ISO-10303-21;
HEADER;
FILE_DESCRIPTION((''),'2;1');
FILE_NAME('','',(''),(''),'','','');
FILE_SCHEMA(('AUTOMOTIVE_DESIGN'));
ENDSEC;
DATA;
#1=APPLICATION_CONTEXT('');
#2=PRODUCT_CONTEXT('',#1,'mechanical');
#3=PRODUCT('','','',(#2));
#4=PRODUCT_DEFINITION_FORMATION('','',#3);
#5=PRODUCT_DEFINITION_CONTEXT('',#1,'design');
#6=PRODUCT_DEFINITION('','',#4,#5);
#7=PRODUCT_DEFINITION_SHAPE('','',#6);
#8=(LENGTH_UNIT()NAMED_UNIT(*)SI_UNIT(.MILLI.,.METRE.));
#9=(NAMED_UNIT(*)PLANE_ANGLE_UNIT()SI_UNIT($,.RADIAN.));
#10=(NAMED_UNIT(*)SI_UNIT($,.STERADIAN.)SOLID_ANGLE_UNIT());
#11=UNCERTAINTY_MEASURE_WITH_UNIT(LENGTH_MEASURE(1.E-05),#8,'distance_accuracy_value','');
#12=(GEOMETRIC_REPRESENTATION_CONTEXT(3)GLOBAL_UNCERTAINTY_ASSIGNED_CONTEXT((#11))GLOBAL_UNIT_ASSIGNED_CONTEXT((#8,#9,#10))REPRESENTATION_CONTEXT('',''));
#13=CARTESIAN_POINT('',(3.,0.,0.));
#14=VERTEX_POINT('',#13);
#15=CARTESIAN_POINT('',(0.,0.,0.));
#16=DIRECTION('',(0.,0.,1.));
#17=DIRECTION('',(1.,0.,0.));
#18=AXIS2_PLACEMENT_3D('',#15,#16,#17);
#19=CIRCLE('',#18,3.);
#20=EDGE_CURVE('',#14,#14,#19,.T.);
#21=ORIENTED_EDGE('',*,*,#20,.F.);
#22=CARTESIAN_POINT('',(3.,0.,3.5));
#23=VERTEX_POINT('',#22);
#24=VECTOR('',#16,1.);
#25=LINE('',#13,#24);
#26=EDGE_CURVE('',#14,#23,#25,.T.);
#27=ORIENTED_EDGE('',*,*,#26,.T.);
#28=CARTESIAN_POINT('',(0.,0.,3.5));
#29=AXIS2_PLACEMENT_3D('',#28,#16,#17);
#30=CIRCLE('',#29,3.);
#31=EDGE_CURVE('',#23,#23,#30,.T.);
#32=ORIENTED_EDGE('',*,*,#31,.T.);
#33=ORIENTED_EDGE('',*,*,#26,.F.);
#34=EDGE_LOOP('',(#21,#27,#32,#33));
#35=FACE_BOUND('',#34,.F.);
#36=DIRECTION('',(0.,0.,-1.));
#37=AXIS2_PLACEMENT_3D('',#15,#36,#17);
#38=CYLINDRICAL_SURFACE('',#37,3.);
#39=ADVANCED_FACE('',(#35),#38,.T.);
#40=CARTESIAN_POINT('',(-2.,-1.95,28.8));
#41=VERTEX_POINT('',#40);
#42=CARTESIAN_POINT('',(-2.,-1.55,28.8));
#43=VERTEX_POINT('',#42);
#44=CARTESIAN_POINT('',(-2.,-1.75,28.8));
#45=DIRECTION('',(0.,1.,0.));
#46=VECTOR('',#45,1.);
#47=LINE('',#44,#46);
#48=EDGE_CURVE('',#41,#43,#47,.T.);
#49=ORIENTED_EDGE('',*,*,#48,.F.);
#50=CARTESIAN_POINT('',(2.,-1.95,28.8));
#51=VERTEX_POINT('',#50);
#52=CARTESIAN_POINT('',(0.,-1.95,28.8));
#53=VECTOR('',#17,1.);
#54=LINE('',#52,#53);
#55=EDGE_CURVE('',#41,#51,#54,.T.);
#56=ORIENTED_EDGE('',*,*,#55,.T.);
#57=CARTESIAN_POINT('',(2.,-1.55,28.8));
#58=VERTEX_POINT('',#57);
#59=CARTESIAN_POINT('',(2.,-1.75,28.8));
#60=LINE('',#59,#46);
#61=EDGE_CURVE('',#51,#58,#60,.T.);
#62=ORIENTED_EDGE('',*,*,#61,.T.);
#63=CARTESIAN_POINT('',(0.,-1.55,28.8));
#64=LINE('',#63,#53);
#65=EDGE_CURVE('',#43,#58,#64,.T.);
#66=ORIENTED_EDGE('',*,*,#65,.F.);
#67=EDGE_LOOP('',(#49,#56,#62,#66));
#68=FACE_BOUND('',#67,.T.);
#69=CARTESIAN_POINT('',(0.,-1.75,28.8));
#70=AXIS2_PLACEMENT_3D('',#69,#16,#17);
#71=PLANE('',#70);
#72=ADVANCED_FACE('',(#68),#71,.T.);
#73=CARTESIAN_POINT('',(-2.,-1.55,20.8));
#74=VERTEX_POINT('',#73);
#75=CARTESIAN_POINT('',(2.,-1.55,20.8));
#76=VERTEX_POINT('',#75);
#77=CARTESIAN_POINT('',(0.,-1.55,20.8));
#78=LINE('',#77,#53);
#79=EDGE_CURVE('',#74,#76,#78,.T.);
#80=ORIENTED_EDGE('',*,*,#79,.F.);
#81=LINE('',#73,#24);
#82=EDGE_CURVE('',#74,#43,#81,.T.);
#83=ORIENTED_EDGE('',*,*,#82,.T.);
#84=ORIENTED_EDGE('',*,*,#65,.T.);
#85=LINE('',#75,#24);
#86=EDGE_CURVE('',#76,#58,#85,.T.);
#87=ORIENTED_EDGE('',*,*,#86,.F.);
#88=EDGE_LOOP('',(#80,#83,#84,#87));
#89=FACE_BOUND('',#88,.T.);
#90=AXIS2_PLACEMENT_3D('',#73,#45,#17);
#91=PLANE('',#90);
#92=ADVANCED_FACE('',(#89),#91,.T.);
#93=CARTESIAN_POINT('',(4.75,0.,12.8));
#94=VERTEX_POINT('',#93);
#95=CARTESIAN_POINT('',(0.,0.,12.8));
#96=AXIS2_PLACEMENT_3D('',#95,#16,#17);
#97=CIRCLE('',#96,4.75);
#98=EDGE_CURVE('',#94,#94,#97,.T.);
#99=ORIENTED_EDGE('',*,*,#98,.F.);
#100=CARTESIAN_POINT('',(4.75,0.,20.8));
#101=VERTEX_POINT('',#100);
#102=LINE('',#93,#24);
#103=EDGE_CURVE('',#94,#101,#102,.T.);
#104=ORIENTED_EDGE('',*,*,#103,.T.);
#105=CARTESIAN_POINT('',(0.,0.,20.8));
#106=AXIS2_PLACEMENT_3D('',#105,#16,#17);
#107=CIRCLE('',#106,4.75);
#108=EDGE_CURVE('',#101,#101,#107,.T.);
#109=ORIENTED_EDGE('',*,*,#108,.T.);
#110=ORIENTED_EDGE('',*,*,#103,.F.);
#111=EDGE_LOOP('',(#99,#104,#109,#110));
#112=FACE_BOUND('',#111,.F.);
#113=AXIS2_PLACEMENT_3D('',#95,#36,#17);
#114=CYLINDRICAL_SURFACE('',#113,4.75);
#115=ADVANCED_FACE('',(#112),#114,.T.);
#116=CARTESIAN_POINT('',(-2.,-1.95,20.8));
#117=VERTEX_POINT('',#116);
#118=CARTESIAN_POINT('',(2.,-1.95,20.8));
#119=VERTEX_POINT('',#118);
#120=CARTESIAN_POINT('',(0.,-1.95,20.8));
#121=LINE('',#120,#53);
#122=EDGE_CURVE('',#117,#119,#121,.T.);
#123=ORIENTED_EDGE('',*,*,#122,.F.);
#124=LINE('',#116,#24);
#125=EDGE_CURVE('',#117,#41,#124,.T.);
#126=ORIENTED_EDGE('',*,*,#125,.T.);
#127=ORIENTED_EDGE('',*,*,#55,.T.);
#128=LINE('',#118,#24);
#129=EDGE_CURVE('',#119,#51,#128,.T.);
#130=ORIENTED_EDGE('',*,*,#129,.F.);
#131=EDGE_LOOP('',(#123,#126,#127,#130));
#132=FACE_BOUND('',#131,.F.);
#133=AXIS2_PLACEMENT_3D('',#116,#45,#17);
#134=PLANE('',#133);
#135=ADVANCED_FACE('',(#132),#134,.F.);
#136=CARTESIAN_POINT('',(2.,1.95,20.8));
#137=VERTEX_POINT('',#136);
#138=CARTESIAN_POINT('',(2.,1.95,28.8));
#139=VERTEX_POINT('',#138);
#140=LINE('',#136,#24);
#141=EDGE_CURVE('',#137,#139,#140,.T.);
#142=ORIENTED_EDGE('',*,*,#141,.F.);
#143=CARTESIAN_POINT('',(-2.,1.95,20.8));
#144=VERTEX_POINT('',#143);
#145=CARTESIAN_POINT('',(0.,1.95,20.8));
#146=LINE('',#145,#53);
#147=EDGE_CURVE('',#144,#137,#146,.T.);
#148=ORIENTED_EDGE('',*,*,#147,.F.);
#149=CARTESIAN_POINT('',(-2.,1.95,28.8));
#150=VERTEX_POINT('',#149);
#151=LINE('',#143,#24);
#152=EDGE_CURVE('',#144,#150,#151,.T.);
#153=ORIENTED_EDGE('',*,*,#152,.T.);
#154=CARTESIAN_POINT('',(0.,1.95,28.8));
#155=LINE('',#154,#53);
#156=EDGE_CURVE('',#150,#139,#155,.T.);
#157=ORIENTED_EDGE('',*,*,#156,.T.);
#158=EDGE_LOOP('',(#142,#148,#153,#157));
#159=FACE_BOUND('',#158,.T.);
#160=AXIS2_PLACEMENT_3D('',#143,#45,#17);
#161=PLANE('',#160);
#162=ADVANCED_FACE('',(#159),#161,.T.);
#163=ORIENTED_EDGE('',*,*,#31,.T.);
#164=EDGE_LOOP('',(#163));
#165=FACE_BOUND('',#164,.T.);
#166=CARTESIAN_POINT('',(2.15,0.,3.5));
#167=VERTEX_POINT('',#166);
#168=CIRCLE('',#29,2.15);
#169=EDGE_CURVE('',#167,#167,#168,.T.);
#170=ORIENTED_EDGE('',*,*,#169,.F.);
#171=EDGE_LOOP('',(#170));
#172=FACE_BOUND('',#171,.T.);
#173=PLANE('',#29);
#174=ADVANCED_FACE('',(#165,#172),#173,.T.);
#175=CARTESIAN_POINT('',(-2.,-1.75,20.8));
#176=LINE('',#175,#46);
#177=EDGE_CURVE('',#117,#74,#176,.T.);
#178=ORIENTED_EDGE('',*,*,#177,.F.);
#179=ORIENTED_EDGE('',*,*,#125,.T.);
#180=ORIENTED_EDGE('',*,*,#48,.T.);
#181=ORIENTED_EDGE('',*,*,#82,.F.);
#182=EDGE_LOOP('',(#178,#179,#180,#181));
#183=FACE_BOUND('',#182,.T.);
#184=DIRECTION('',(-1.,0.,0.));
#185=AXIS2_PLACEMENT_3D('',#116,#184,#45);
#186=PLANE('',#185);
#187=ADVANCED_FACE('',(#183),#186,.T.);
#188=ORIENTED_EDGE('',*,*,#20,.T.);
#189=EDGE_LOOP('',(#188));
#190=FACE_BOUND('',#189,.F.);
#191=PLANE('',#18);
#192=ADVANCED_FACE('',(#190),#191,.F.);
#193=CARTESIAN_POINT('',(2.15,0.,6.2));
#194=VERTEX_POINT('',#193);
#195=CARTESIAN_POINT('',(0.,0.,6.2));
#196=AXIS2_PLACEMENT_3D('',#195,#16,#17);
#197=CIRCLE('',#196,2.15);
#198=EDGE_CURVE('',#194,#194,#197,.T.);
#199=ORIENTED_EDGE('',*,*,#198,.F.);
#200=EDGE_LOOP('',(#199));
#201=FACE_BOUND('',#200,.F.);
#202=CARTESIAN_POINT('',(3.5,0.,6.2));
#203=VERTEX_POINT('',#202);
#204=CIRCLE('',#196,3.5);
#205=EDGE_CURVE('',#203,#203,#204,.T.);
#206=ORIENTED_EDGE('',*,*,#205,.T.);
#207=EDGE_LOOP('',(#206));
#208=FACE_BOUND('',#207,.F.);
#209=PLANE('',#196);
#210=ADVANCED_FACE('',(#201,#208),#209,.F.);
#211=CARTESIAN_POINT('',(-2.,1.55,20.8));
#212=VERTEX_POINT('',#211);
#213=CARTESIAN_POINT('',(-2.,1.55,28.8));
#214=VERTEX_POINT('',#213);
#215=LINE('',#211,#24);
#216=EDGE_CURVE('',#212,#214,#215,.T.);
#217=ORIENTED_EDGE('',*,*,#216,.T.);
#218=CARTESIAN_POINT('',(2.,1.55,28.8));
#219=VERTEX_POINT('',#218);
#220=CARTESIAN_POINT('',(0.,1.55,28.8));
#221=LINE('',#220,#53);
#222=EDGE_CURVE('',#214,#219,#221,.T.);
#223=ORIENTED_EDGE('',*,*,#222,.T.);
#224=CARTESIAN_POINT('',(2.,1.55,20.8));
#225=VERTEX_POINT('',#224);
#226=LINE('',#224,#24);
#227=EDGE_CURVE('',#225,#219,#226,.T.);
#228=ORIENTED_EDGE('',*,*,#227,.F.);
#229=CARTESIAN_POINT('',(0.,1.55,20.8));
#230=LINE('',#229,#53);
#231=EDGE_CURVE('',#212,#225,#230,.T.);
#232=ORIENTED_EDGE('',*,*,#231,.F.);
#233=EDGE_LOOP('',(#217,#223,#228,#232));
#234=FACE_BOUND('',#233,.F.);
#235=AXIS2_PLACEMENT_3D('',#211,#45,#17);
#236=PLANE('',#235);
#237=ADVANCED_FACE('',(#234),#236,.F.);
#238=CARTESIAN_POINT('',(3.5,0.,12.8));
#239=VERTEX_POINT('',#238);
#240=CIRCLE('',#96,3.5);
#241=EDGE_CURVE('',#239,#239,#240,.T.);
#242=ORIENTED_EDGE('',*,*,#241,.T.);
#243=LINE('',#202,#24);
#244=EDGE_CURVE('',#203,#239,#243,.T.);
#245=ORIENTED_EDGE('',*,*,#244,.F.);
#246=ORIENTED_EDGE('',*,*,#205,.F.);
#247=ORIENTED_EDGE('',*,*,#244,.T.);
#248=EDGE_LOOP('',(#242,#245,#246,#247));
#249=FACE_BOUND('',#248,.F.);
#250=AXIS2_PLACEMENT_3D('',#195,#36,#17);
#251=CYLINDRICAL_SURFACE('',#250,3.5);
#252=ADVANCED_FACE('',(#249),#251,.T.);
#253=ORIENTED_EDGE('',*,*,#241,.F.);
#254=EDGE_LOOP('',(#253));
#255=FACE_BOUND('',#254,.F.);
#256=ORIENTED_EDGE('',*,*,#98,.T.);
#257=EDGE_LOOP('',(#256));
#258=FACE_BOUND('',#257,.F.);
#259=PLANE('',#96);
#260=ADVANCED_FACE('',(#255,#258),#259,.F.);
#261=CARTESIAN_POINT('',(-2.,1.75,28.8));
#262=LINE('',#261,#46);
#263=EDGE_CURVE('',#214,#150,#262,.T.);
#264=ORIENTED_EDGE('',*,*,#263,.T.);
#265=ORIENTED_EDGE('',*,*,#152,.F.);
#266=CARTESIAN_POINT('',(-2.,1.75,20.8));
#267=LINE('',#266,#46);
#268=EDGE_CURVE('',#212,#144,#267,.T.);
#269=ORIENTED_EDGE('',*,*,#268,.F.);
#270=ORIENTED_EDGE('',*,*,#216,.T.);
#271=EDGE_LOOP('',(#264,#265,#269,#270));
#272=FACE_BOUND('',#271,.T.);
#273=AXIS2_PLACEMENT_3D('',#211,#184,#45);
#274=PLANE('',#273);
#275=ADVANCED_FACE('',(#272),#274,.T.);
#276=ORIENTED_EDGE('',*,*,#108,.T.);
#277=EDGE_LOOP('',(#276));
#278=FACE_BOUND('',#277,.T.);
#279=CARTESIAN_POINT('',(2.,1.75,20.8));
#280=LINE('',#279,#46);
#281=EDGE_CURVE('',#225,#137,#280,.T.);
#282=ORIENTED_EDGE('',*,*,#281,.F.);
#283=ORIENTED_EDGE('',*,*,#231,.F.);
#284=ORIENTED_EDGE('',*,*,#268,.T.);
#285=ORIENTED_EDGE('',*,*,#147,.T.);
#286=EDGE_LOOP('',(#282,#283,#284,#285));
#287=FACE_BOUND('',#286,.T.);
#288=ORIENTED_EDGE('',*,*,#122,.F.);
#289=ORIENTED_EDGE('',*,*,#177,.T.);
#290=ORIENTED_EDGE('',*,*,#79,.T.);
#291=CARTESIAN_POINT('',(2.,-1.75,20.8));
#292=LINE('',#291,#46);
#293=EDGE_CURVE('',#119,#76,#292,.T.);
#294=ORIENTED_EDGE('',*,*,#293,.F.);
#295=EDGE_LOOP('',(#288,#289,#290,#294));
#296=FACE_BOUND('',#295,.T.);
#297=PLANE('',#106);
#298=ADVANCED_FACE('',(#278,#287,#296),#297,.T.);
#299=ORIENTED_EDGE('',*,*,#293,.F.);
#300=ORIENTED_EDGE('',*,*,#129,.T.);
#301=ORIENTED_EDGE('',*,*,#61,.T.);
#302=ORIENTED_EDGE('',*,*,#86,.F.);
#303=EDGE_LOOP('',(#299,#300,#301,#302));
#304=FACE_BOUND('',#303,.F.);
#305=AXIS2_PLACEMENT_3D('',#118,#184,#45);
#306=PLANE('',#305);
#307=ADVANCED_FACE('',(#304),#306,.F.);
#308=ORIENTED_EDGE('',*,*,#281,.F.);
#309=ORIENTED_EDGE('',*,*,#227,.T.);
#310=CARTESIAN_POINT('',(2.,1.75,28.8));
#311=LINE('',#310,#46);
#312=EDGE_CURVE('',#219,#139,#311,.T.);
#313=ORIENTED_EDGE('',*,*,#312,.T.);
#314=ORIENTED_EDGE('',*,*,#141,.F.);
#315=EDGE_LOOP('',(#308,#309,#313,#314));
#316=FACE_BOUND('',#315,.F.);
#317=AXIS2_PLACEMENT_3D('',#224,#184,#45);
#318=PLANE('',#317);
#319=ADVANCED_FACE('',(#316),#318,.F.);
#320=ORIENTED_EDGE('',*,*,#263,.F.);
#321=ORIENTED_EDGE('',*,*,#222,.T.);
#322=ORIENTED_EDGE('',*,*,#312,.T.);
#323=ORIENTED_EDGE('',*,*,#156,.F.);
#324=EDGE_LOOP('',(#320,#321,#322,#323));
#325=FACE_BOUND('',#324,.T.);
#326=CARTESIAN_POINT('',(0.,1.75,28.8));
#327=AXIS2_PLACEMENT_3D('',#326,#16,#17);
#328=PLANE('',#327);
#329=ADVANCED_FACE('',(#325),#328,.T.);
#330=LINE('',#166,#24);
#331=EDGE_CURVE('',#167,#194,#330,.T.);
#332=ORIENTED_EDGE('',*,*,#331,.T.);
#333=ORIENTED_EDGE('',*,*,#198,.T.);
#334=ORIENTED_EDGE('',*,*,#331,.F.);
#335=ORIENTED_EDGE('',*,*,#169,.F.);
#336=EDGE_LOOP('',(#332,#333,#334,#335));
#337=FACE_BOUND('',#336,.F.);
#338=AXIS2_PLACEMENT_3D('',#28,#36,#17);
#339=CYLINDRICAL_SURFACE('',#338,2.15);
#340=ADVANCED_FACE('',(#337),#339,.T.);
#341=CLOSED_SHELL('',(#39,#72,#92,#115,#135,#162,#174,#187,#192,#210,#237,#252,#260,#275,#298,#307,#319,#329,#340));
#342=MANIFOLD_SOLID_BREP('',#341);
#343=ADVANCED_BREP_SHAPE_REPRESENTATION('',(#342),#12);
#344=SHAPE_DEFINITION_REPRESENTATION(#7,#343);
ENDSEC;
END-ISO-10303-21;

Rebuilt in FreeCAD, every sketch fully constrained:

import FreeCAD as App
import Part
import Sketcher
from FreeCAD import Vector
Q = App.Units.Quantity


def add_polygon(sketch, points):
    """Adds a closed chain of lines whose ends are joined by coincident constraints."""
    first, n = sketch.GeometryCount, len(points)
    for a, b in zip(points, points[1:] + points[:1]):
        sketch.addGeometry(Part.LineSegment(App.Vector(*a, 0), App.Vector(*b, 0)), False)
    for i in range(n):
        sketch.addConstraint(Sketcher.Constraint("Coincident", first + i, 2, first + (i + 1) % n, 1))

doc = App.newDocument("Part")
params = doc.addObject("Spreadsheet::Sheet", "Params")
for row, (alias, value) in enumerate([
    ("sketch1_diameter", "6 mm"),
    ("pad1_length", "3.5 mm"),
    ("sketch2_diameter", "4.3 mm"),
    ("pad2_length", "2.7 mm"),
    ("sketch3_diameter", "7 mm"),
    ("pad3_length", "6.6 mm"),
    ("sketch4_diameter", "9.5 mm"),
    ("pad4_length", "8 mm"),
    ("sketch5_width", "4 mm"),
    ("sketch5_height", "0.4 mm"),
    ("pad5_length", "8 mm"),
], start=1):
    params.set(f"A{row}", alias)
    params.set(f"B{row}", "=" + value)
    params.setAlias(f"B{row}", alias)

body = doc.addObject("PartDesign::Body", "Body")

# Sketch on XY plane
sketch1 = body.newObject("Sketcher::SketchObject", "Sketch")
sketch1.AttachmentSupport = (doc.getObject("XY_Plane"), [""])
sketch1.MapMode = "FlatFace"
sketch1.addGeometry(Part.Circle(Vector(0, 0, 0), Vector(0, 0, 1), 3), False)
sketch1.addConstraint([
    Sketcher.Constraint("Coincident", 0, 3, -1, 1),
    Sketcher.Constraint("Diameter", 0, Q("6 mm")),
])
sketch1.setExpression("Constraints[1]", "Params.sketch1_diameter")
pad1 = body.newObject("PartDesign::Pad", "Pad")
pad1.Profile = sketch1
pad1.setExpression("Length", "Params.pad1_length")

# Sketch on XY plane
sketch2 = body.newObject("Sketcher::SketchObject", "Sketch001")
sketch2.AttachmentSupport = (doc.getObject("XY_Plane"), [""])
sketch2.MapMode = "FlatFace"
sketch2.AttachmentOffset = App.Placement(Vector(0, 0, 3.5), App.Rotation())
sketch2.addGeometry(Part.Circle(Vector(0, 0, 0), Vector(0, 0, 1), 2.1), False)
sketch2.addConstraint([
    Sketcher.Constraint("Coincident", 0, 3, -1, 1),
    Sketcher.Constraint("Diameter", 0, Q("4.3 mm")),
])
sketch2.setExpression("Constraints[1]", "Params.sketch2_diameter")
pad2 = body.newObject("PartDesign::Pad", "Pad001")
pad2.Profile = sketch2
pad2.setExpression("Length", "Params.pad2_length")

# Sketch on XY plane
sketch3 = body.newObject("Sketcher::SketchObject", "Sketch002")
sketch3.AttachmentSupport = (doc.getObject("XY_Plane"), [""])
sketch3.MapMode = "FlatFace"
sketch3.AttachmentOffset = App.Placement(Vector(0, 0, 6.2), App.Rotation())
sketch3.addGeometry(Part.Circle(Vector(0, 0, 0), Vector(0, 0, 1), 3.5), False)
sketch3.addConstraint([
    Sketcher.Constraint("Coincident", 0, 3, -1, 1),
    Sketcher.Constraint("Diameter", 0, Q("7 mm")),
])
sketch3.setExpression("Constraints[1]", "Params.sketch3_diameter")
pad3 = body.newObject("PartDesign::Pad", "Pad002")
pad3.Profile = sketch3
pad3.setExpression("Length", "Params.pad3_length")

# Sketch on XY plane
sketch4 = body.newObject("Sketcher::SketchObject", "Sketch003")
sketch4.AttachmentSupport = (doc.getObject("XY_Plane"), [""])
sketch4.MapMode = "FlatFace"
sketch4.AttachmentOffset = App.Placement(Vector(0, 0, 12.8), App.Rotation())
sketch4.addGeometry(Part.Circle(Vector(0, 0, 0), Vector(0, 0, 1), 4.8), False)
sketch4.addConstraint([
    Sketcher.Constraint("Coincident", 0, 3, -1, 1),
    Sketcher.Constraint("Diameter", 0, Q("9.5 mm")),
])
sketch4.setExpression("Constraints[1]", "Params.sketch4_diameter")
pad4 = body.newObject("PartDesign::Pad", "Pad003")
pad4.Profile = sketch4
pad4.setExpression("Length", "Params.pad4_length")

# Sketch on XY plane
sketch5 = body.newObject("Sketcher::SketchObject", "Sketch004")
sketch5.AttachmentSupport = (doc.getObject("XY_Plane"), [""])
sketch5.MapMode = "FlatFace"
sketch5.AttachmentOffset = App.Placement(Vector(0, 0, 20.8), App.Rotation())
add_polygon(sketch5, [(-2, -1.55), (-2, -1.95), (2, -1.95), (2, -1.55)])  # lines 0-3
add_polygon(sketch5, [(-2, 1.95), (-2, 1.55), (2, 1.55), (2, 1.95)])  # lines 4-7
sketch5.addConstraint([
    Sketcher.Constraint("Vertical", 0),
    Sketcher.Constraint("Horizontal", 1),
    Sketcher.Constraint("Vertical", 2),
    Sketcher.Constraint("Horizontal", 3),
    Sketcher.Constraint("Vertical", 4),
    Sketcher.Constraint("Horizontal", 5),
    Sketcher.Constraint("Vertical", 6),
    Sketcher.Constraint("Horizontal", 7),
    Sketcher.Constraint("Symmetric", 2, 2, 4, 2, -1, 1),
    Sketcher.Constraint("Symmetric", 0, 2, 6, 2, -1, 1),
    Sketcher.Constraint("Vertical", 3, 2, 4, 2),
    Sketcher.Constraint("DistanceX", 1, 1, 1, 2, Q("4 mm")),
    Sketcher.Constraint("DistanceY", 0, 2, 0, 1, Q("0.4 mm")),
    Sketcher.Constraint("DistanceY", 3, 2, 4, 2, Q("3.1 mm")),
])
sketch5.setExpression("Constraints[19]", "Params.sketch5_width")
sketch5.setExpression("Constraints[20]", "Params.sketch5_height")
pad5 = body.newObject("PartDesign::Pad", "Pad004")
pad5.Profile = sketch5
pad5.setExpression("Length", "Params.pad5_length")

doc.recompute()
